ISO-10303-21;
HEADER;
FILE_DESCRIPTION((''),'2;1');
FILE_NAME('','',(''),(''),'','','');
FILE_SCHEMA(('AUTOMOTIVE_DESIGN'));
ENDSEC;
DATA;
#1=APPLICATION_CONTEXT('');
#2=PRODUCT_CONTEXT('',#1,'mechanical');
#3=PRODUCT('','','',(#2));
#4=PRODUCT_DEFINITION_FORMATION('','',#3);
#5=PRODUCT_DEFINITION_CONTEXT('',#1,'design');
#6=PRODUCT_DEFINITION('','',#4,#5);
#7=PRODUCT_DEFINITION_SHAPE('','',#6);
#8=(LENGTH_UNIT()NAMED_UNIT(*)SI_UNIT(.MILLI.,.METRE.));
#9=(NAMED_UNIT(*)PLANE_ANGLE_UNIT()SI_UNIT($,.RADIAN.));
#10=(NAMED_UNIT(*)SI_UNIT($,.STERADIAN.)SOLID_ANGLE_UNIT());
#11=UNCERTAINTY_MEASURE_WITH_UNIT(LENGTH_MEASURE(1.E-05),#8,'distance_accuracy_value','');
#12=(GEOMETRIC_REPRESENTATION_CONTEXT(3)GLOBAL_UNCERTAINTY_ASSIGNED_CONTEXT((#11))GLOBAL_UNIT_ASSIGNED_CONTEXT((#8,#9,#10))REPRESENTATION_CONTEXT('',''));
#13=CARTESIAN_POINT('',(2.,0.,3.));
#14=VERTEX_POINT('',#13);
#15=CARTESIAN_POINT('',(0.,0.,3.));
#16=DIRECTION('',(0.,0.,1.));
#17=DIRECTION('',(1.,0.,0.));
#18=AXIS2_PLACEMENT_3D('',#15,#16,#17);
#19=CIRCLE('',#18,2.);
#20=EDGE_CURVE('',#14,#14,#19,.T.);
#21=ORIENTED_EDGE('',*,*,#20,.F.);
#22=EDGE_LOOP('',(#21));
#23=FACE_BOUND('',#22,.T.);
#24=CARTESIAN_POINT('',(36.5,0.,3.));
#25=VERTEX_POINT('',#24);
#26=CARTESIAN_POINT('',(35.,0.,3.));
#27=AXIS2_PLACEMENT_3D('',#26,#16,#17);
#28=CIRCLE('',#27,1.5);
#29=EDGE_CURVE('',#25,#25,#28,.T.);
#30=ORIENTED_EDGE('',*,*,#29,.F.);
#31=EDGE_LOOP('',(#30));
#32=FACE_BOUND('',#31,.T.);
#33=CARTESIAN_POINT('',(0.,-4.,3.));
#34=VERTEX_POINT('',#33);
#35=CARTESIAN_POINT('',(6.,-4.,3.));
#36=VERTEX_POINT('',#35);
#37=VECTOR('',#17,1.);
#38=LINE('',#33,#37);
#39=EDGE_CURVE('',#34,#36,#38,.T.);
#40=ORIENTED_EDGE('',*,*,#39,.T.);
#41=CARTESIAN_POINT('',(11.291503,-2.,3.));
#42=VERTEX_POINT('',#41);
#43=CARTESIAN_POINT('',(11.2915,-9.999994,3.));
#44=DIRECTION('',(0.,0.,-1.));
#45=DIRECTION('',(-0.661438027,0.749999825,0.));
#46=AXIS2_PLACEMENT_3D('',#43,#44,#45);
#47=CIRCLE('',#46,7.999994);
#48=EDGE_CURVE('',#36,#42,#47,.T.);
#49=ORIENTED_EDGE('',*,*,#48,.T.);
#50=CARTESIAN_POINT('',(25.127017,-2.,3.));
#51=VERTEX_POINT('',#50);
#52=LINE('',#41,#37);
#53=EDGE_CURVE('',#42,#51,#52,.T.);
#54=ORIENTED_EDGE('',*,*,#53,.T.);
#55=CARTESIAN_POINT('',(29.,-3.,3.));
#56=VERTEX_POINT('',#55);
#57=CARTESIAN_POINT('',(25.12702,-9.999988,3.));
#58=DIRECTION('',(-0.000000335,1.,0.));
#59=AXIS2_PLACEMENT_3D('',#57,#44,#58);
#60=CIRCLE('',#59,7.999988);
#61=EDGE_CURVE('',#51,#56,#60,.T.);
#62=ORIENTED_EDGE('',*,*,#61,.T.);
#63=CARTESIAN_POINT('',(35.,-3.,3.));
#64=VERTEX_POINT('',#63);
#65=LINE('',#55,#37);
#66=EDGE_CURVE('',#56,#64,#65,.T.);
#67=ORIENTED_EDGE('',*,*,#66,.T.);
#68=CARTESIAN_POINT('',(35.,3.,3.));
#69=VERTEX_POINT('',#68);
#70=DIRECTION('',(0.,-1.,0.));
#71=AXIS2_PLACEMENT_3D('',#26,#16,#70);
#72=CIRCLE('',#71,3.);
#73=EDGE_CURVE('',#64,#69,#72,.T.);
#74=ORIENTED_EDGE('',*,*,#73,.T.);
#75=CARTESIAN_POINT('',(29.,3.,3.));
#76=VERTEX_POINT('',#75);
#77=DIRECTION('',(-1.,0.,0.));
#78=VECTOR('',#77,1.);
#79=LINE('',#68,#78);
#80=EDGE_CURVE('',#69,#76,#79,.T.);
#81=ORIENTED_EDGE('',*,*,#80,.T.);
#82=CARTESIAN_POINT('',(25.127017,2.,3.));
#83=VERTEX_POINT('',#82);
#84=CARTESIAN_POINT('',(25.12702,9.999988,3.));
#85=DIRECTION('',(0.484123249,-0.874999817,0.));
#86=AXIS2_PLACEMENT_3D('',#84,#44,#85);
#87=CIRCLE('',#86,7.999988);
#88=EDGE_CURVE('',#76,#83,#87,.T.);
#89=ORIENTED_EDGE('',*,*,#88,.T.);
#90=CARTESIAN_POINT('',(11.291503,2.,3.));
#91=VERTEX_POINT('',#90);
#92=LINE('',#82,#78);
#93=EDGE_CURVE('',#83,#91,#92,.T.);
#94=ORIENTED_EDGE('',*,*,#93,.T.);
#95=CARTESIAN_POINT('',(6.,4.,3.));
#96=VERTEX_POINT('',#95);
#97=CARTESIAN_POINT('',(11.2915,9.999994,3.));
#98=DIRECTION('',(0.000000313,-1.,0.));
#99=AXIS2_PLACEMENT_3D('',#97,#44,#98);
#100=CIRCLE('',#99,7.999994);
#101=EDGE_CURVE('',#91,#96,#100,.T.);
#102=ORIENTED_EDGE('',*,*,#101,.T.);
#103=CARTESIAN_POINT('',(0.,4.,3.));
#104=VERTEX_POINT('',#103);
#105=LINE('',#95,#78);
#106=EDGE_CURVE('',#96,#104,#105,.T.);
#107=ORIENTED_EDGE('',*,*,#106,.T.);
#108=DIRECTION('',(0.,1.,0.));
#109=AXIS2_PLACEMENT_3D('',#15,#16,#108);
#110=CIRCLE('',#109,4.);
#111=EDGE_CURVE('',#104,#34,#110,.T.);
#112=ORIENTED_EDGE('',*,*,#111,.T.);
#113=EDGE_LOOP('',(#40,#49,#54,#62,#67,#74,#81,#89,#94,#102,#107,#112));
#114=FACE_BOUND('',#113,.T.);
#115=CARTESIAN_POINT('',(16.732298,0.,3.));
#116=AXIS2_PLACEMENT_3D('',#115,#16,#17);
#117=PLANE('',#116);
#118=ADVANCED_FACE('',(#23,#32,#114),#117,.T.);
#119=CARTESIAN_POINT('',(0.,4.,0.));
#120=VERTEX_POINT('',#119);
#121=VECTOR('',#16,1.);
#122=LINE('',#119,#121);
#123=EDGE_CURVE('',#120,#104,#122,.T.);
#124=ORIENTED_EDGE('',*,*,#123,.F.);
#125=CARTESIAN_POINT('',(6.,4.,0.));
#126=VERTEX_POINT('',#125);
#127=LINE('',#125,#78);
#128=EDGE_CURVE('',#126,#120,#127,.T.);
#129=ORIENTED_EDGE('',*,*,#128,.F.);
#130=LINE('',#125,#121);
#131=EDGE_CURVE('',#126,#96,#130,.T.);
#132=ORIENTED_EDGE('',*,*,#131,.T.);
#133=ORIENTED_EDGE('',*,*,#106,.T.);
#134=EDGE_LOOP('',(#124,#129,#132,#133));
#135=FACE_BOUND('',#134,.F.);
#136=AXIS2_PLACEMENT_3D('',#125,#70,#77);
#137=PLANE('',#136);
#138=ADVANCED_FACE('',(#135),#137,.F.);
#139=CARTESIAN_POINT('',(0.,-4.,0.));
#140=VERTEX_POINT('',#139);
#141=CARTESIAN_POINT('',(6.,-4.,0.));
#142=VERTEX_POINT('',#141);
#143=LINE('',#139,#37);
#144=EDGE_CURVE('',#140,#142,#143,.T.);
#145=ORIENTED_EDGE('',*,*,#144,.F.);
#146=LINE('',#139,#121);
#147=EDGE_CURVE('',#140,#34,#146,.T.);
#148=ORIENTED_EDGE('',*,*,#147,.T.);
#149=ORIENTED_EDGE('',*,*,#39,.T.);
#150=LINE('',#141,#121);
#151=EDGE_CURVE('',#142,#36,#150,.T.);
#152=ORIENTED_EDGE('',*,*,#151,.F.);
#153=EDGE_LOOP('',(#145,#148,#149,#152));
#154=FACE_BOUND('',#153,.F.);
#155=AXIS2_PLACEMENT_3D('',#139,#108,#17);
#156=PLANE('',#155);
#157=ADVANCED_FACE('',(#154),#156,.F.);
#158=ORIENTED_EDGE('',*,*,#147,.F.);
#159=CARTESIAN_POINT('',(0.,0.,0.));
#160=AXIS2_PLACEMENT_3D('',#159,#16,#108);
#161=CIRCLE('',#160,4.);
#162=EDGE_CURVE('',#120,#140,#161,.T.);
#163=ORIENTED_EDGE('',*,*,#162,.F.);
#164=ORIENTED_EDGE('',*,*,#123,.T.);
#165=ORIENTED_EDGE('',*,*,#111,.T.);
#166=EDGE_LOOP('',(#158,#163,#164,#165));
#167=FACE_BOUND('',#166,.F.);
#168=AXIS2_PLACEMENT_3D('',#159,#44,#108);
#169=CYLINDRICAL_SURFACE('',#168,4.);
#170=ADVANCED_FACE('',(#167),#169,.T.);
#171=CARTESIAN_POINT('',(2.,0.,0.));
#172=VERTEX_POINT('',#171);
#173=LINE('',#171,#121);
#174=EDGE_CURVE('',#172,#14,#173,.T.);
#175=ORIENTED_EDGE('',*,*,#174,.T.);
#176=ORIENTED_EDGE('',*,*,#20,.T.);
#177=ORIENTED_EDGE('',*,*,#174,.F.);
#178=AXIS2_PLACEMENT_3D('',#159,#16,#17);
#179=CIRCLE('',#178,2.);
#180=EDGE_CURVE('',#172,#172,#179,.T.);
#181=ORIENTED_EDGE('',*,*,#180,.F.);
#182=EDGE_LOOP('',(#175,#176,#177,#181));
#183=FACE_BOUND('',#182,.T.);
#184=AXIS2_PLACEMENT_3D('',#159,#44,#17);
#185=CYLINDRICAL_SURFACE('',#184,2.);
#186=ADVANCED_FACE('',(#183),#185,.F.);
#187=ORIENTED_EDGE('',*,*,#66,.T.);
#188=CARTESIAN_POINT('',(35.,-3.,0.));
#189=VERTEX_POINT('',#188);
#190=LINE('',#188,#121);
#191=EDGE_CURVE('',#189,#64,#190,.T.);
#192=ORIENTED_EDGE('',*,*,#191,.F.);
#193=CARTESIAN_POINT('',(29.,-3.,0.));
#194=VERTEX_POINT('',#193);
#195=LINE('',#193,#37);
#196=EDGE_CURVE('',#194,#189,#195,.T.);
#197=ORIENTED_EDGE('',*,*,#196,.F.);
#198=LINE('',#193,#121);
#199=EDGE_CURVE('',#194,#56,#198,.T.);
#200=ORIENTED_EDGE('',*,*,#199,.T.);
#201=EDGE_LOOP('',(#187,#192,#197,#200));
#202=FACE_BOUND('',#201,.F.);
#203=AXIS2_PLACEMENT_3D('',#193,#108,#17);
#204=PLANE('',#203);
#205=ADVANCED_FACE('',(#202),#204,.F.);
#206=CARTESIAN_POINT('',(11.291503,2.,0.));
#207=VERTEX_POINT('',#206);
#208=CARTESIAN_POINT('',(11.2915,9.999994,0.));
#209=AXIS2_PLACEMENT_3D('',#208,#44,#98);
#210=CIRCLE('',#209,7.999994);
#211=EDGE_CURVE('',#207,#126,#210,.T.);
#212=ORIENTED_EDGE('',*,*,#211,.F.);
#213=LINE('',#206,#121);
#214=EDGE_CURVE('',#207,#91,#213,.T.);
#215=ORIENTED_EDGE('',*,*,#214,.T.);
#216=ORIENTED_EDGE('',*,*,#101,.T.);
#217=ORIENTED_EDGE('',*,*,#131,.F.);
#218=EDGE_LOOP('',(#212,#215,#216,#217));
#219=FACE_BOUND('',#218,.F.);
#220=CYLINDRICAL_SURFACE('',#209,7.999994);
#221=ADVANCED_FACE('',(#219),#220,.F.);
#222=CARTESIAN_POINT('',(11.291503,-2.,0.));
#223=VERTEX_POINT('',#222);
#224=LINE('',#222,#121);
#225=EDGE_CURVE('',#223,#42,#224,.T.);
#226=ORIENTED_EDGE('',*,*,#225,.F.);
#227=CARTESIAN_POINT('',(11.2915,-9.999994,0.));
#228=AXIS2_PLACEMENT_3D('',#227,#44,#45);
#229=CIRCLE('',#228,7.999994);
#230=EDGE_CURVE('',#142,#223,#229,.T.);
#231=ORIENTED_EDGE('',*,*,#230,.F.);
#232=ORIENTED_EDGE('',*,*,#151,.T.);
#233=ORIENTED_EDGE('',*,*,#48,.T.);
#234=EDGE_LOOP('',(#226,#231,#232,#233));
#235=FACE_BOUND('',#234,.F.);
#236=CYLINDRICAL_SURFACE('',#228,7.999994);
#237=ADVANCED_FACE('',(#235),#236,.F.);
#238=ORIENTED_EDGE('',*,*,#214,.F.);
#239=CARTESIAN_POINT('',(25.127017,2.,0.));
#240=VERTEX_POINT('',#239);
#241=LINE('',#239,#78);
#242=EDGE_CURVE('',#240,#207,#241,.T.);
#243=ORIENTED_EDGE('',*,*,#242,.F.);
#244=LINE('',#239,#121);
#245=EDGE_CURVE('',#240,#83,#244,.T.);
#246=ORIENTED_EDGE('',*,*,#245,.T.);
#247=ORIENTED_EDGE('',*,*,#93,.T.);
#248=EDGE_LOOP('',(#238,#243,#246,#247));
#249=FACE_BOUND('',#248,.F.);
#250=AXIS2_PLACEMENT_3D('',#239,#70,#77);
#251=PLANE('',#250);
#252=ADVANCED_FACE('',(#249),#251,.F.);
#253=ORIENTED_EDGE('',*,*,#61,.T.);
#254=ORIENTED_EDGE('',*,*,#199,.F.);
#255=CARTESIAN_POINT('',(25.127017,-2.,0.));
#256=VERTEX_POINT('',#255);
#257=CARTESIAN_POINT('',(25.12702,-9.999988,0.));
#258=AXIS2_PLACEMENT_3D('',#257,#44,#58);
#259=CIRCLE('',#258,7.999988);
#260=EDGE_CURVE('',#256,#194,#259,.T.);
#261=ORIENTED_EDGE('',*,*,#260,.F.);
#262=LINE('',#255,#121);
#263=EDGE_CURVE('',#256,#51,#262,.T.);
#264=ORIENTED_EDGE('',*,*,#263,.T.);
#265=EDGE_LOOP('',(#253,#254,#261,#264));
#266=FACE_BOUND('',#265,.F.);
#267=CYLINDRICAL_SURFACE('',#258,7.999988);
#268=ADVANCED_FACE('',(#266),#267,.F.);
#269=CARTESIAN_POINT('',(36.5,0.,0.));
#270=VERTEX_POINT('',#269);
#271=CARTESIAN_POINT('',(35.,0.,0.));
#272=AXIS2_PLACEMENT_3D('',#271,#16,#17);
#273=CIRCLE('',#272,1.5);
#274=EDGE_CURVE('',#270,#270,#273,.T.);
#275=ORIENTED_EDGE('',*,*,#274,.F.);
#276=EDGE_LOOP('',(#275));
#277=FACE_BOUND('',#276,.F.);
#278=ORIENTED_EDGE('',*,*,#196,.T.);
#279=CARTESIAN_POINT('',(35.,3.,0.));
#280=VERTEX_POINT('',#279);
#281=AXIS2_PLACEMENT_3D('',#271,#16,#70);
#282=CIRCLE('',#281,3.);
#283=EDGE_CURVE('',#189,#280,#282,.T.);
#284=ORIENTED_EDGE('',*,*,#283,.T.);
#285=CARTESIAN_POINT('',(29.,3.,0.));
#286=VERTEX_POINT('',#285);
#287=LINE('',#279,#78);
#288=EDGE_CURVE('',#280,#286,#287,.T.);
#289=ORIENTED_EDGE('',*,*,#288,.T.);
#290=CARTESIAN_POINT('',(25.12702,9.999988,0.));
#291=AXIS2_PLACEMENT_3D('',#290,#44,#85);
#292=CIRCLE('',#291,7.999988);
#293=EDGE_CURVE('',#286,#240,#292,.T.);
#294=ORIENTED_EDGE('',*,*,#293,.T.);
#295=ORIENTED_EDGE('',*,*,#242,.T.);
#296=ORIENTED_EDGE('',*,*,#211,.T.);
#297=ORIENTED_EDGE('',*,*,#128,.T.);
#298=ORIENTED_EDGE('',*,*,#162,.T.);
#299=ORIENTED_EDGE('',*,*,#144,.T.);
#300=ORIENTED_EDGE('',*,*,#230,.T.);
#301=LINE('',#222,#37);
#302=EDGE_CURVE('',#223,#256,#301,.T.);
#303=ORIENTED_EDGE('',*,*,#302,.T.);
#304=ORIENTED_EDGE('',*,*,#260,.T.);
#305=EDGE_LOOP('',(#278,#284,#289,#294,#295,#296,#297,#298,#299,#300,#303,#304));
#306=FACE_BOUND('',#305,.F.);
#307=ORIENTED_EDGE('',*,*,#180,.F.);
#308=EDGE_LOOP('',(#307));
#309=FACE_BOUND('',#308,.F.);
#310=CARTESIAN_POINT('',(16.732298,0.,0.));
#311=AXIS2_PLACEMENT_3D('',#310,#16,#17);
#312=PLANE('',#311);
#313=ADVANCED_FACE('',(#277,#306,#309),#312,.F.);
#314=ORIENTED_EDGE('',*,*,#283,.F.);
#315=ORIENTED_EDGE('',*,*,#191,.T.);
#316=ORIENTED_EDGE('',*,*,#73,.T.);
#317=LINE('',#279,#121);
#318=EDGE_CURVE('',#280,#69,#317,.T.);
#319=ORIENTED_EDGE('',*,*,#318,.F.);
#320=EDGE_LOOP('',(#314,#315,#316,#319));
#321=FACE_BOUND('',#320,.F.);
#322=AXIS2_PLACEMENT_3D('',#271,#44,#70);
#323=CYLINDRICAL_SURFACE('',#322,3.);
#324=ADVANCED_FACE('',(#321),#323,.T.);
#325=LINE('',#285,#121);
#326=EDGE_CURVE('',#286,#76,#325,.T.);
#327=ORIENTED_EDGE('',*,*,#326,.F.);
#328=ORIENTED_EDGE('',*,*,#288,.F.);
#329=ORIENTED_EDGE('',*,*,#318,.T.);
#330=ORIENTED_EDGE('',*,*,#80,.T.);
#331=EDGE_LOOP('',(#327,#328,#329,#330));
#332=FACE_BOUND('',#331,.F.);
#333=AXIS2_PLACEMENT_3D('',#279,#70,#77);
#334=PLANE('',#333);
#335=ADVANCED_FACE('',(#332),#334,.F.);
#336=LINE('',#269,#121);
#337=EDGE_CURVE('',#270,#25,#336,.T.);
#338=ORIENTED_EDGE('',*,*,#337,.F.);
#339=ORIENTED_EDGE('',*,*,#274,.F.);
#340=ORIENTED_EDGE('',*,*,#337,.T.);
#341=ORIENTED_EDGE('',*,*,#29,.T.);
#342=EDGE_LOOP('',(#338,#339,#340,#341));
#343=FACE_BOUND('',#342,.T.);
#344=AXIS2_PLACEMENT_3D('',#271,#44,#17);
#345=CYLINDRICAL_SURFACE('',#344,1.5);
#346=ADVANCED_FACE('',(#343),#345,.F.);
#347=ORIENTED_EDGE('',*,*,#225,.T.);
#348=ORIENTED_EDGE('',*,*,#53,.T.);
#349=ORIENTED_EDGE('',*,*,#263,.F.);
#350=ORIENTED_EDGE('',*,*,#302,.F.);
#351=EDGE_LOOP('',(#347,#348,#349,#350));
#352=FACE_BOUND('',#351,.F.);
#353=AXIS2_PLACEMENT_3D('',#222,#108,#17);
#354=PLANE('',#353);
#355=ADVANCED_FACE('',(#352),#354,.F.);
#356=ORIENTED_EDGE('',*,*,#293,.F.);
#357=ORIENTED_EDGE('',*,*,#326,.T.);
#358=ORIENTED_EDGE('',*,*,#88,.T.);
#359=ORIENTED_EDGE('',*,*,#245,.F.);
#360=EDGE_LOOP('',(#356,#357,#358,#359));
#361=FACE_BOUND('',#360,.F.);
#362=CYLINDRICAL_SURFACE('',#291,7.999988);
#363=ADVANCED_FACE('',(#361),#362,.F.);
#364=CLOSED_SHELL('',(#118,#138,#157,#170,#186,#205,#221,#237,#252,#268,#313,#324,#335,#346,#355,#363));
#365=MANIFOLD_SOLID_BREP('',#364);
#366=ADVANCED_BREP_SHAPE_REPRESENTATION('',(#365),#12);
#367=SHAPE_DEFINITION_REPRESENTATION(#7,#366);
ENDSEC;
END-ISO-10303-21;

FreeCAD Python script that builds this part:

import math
import FreeCAD as App
import Part
import Sketcher

V = App.Vector

doc = App.newDocument("Part")
body = doc.addObject("PartDesign::Body", "Body")

# Sketch on XY plane
sketch1 = body.newObject("Sketcher::SketchObject", "Sketch")
sketch1.AttachmentSupport = (doc.getObject("XY_Plane"), [""])
sketch1.MapMode = "FlatFace"
sketch1.addGeometry(Part.LineSegment(V(6, 4, 0), V(0, 4, 0)), False)
sketch1.addGeometry(Part.ArcOfCircle(Part.Circle(V(0, 0, 0), V(0, 0, 1), 4), math.radians(90), math.radians(270)), False)
sketch1.addGeometry(Part.LineSegment(V(0, -4, 0), V(6, -4, 0)), False)
sketch1.addGeometry(Part.ArcOfCircle(Part.Circle(V(11.2915, -9.999994, 0), V(0, 0, 1), 7.999994), math.radians(89.999982), math.radians(131.409637)), False)
sketch1.addGeometry(Part.LineSegment(V(11.291503, -2, 0), V(25.127017, -2, 0)), False)
sketch1.addGeometry(Part.ArcOfCircle(Part.Circle(V(25.12702, -9.999988, 0), V(0, 0, 1), 7.999988), math.radians(61.044954), math.radians(90.000019)), False)
sketch1.addGeometry(Part.LineSegment(V(29, -3, 0), V(35, -3, 0)), False)
sketch1.addGeometry(Part.ArcOfCircle(Part.Circle(V(35, 0, 0), V(0, 0, 1), 3), math.radians(-90), math.radians(90)), False)
sketch1.addGeometry(Part.LineSegment(V(35, 3, 0), V(29, 3, 0)), False)
sketch1.addGeometry(Part.ArcOfCircle(Part.Circle(V(25.12702, 9.999988, 0), V(0, 0, 1), 7.999988), math.radians(-90.000019), math.radians(-61.044954)), False)
sketch1.addGeometry(Part.LineSegment(V(25.127017, 2, 0), V(11.291503, 2, 0)), False)
sketch1.addGeometry(Part.ArcOfCircle(Part.Circle(V(11.2915, 9.999994, 0), V(0, 0, 1), 7.999994), math.radians(-131.409637), math.radians(-89.999982)), False)
sketch1.addGeometry(Part.Circle(V(0, 0, 0), V(0, 0, 1), 2), False)
sketch1.addGeometry(Part.Circle(V(35, 0, 0), V(0, 0, 1), 1.5), False)
sketch1.addConstraint(Sketcher.Constraint("Tangent", 0, 2, 1, 1))
sketch1.addConstraint(Sketcher.Constraint("Tangent", 1, 2, 2, 1))
sketch1.addConstraint(Sketcher.Constraint("Coincident", 2, 2, 3, 2))
sketch1.addConstraint(Sketcher.Constraint("Tangent", 3, 1, 4, 1))
sketch1.addConstraint(Sketcher.Constraint("Tangent", 4, 2, 5, 2))
sketch1.addConstraint(Sketcher.Constraint("Coincident", 5, 1, 6, 1))
sketch1.addConstraint(Sketcher.Constraint("Tangent", 6, 2, 7, 1))
sketch1.addConstraint(Sketcher.Constraint("Tangent", 7, 2, 8, 1))
sketch1.addConstraint(Sketcher.Constraint("Coincident", 8, 2, 9, 2))
sketch1.addConstraint(Sketcher.Constraint("Tangent", 9, 1, 10, 1))
sketch1.addConstraint(Sketcher.Constraint("Tangent", 10, 2, 11, 2))
sketch1.addConstraint(Sketcher.Constraint("Coincident", 11, 1, 0, 1))
sketch1.addConstraint(Sketcher.Constraint("Horizontal", 0))
sketch1.addConstraint(Sketcher.Constraint("Horizontal", 2))
sketch1.addConstraint(Sketcher.Constraint("Horizontal", 4))
sketch1.addConstraint(Sketcher.Constraint("Horizontal", 6))
sketch1.addConstraint(Sketcher.Constraint("Horizontal", 8))
sketch1.addConstraint(Sketcher.Constraint("Horizontal", 10))
sketch1.addConstraint(Sketcher.Constraint("Coincident", 1, 3, -1, 1))
sketch1.addConstraint(Sketcher.Constraint("Coincident", 12, 3, -1, 1))
sketch1.addConstraint(Sketcher.Constraint("Coincident", 13, 3, 7, 3))
sketch1.addConstraint(Sketcher.Constraint("Equal", 5, 9))
sketch1.addConstraint(Sketcher.Constraint("Equal", 3, 11))
sketch1.addConstraint(Sketcher.Constraint("Symmetric", 5, 3, 9, 3, -1))
sketch1.addConstraint(Sketcher.Constraint("PointOnObject", 7, 3, -1))
sketch1.addConstraint(Sketcher.Constraint("Vertical", 3, 3, 11, 3))
sketch1.addConstraint(Sketcher.Constraint("Equal", 2, 6))
sketch1.addConstraint(Sketcher.Constraint("Diameter", 12, 4.0))
sketch1.addConstraint(Sketcher.Constraint("Diameter", 13, 3.0))
sketch1.addConstraint(Sketcher.Constraint("Radius", 1, 4.0))
sketch1.addConstraint(Sketcher.Constraint("Radius", 7, 3.0))
sketch1.addConstraint(Sketcher.Constraint("DistanceX", 0, 2, 0, 1, 6.0))
sketch1.addConstraint(Sketcher.Constraint("DistanceX", -1, 1, 7, 3, 35.0))
sketch1.addConstraint(Sketcher.Constraint("DistanceY", 3, 1, -1, 1, 2.0))
sketch1.addConstraint(Sketcher.Constraint("Radius", 5, 7.999988))
sketch1.addConstraint(Sketcher.Constraint("Radius", 3, 7.999994))
pad1 = body.newObject("PartDesign::Pad", "Pad")
pad1.Profile = sketch1
pad1.Length = 3

doc.recompute()
